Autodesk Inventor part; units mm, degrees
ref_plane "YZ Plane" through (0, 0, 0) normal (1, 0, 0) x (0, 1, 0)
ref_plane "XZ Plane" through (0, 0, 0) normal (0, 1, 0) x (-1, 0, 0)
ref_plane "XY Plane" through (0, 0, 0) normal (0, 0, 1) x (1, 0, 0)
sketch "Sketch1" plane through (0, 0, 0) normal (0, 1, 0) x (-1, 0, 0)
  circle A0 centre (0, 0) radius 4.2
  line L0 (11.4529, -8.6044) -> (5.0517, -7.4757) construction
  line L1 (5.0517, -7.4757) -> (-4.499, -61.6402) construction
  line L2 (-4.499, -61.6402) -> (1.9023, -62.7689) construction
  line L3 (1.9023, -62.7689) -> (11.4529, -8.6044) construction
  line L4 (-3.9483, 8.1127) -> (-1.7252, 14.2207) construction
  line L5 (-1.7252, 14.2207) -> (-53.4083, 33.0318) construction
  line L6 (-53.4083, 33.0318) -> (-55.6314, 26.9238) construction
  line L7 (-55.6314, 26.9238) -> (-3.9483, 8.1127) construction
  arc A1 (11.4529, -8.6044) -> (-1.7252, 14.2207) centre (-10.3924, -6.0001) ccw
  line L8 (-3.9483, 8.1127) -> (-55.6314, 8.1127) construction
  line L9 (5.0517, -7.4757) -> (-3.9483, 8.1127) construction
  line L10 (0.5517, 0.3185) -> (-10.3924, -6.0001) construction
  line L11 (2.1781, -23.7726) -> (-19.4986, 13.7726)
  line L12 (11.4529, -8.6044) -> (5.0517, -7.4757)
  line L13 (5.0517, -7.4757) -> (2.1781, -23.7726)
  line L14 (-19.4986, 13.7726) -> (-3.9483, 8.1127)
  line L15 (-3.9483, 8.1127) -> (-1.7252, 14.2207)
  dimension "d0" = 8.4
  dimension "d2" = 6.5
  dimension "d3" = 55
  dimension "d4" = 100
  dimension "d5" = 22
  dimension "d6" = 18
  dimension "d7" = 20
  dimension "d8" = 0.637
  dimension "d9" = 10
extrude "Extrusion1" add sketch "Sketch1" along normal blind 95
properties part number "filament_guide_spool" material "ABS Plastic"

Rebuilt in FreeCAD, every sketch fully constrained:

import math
import FreeCAD as App
import Part
import Sketcher
from FreeCAD import Vector
Q = App.Units.Quantity

doc = App.newDocument("Part")
body = doc.addObject("PartDesign::Body", "Body")

sketch1 = body.newObject("Sketcher::SketchObject", "Sketch")
sketch1.AttachmentSupport = (doc.getObject("XZ_Plane"), [""])
sketch1.MapMode = "FlatFace"
sketch1.addGeometry(Part.LineSegment(Vector(-5.0517, -7.4757, 0), Vector(-11.4529, -8.6044, 0)), False)
sketch1.addGeometry(Part.ArcOfCircle(Part.Circle(Vector(10.3924, -6.0001, 0), Vector(0, 0, 1), 21.999989), math.radians(113.201326), math.radians(186.798463)), False)
sketch1.addGeometry(Part.LineSegment(Vector(1.7252, 14.2207, 0), Vector(3.9483, 8.1127, 0)), False)
sketch1.addGeometry(Part.LineSegment(Vector(3.9483, 8.1127, 0), Vector(19.4986, 13.7726, 0)), False)
sketch1.addGeometry(Part.LineSegment(Vector(19.4986, 13.7726, 0), Vector(-2.1781, -23.7726, 0)), False)
sketch1.addGeometry(Part.LineSegment(Vector(-2.1781, -23.7726, 0), Vector(-5.0517, -7.4757, 0)), False)
sketch1.addGeometry(Part.Circle(Vector(0, 0, 0), Vector(0, 0, 1), 4.2), False)
sketch1.addConstraint(Sketcher.Constraint("Coincident", 0, 2, 1, 2))
sketch1.addConstraint(Sketcher.Constraint("Coincident", 1, 1, 2, 1))
sketch1.addConstraint(Sketcher.Constraint("Coincident", 2, 2, 3, 1))
sketch1.addConstraint(Sketcher.Constraint("Coincident", 3, 2, 4, 1))
sketch1.addConstraint(Sketcher.Constraint("Coincident", 4, 2, 5, 1))
sketch1.addConstraint(Sketcher.Constraint("Coincident", 5, 2, 0, 1))
sketch1.addConstraint(Sketcher.Constraint("Coincident", 6, 3, -1, 1))
sketch1.addConstraint(Sketcher.Constraint("Perpendicular", 2, 3))
sketch1.addConstraint(Sketcher.Constraint("Perpendicular", 0, 5))
sketch1.addConstraint(Sketcher.Constraint("Equal", 0, 2))
sketch1.addConstraint(Sketcher.Constraint("Equal", 3, 5))
sketch1.addConstraint(Sketcher.Constraint("Radius", 1, Q("22 mm")))
sketch1.addConstraint(Sketcher.Constraint("Diameter", 6, Q("8.4 mm")))
sketch1.addConstraint(Sketcher.Constraint("Angle", 3, Q("20.0002 deg")))
sketch1.addConstraint(Sketcher.Constraint("Angle", 5, Q("100 deg")))
sketch1.addConstraint(Sketcher.Constraint("Distance", 0, Q("6.5 mm")))
sketch1.addConstraint(Sketcher.Constraint("Angle", 4, Q("-120 deg")))
sketch1.addConstraint(Sketcher.Constraint("DistanceY", 1, 3, -1, 1, Q("6 mm")))
sketch1.addConstraint(Sketcher.Constraint("DistanceX", 5, 2, 2, 2, Q("9 mm")))
sketch1.addConstraint(Sketcher.Constraint("DistanceY", 2, 2, 3, 2, Q("5.66 mm")))
sketch1.addConstraint(Sketcher.Constraint("DistanceX", 0, 2, -1, 1, Q("11.453 mm")))
pad1 = body.newObject("PartDesign::Pad", "Pad")
pad1.Profile = sketch1
pad1.Length = 95
pad1.Reversed = True

doc.recompute()
